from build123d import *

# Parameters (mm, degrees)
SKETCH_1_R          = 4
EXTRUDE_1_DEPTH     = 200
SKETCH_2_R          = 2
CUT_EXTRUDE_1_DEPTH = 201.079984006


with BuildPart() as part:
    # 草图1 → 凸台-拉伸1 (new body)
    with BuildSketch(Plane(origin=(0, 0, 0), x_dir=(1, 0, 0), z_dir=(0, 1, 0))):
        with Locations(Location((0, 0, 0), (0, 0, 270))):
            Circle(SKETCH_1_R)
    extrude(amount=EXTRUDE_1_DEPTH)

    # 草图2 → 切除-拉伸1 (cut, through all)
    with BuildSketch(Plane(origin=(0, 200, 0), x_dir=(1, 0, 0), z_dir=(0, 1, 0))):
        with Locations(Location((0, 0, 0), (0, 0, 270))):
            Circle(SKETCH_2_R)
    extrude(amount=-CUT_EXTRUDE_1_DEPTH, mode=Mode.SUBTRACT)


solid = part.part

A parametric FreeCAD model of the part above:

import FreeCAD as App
import Part
import Sketcher
from FreeCAD import Vector

doc = App.newDocument("Part")
body = doc.addObject("PartDesign::Body", "Body")

sketch1 = body.newObject("Sketcher::SketchObject", "Sketch")
sketch1.AttachmentSupport = (doc.getObject("XZ_Plane"), [""])
sketch1.MapMode = "FlatFace"
sketch1.addGeometry(Part.Circle(Vector(0, 0, 0), Vector(0, 0, 1), 4), False)
sketch1.addConstraint([
    Sketcher.Constraint("Coincident", 0, 3, -1, 1),
    Sketcher.Constraint("Diameter", 0, 8.0),
])
pad1 = body.newObject("PartDesign::Pad", "Pad")
pad1.Profile = sketch1
pad1.Length = 200
pad1.Reversed = True

sketch2 = body.newObject("Sketcher::SketchObject", "Sketch001")
sketch2.AttachmentSupport = (doc.getObject("XZ_Plane"), [""])
sketch2.MapMode = "FlatFace"
sketch2.AttachmentOffset = App.Placement(Vector(0, 0, -200), App.Rotation())
sketch2.addGeometry(Part.Circle(Vector(0, 0, 0), Vector(0, 0, 1), 2), False)
sketch2.addConstraint([
    Sketcher.Constraint("Coincident", 0, 3, -1, 1),
    Sketcher.Constraint("Diameter", 0, 4.0),
])
pocket1 = body.newObject("PartDesign::Pocket", "Pocket")
pocket1.Profile = sketch2
pocket1.Type = "ThroughAll"
pocket1.Reversed = True

doc.recompute()
